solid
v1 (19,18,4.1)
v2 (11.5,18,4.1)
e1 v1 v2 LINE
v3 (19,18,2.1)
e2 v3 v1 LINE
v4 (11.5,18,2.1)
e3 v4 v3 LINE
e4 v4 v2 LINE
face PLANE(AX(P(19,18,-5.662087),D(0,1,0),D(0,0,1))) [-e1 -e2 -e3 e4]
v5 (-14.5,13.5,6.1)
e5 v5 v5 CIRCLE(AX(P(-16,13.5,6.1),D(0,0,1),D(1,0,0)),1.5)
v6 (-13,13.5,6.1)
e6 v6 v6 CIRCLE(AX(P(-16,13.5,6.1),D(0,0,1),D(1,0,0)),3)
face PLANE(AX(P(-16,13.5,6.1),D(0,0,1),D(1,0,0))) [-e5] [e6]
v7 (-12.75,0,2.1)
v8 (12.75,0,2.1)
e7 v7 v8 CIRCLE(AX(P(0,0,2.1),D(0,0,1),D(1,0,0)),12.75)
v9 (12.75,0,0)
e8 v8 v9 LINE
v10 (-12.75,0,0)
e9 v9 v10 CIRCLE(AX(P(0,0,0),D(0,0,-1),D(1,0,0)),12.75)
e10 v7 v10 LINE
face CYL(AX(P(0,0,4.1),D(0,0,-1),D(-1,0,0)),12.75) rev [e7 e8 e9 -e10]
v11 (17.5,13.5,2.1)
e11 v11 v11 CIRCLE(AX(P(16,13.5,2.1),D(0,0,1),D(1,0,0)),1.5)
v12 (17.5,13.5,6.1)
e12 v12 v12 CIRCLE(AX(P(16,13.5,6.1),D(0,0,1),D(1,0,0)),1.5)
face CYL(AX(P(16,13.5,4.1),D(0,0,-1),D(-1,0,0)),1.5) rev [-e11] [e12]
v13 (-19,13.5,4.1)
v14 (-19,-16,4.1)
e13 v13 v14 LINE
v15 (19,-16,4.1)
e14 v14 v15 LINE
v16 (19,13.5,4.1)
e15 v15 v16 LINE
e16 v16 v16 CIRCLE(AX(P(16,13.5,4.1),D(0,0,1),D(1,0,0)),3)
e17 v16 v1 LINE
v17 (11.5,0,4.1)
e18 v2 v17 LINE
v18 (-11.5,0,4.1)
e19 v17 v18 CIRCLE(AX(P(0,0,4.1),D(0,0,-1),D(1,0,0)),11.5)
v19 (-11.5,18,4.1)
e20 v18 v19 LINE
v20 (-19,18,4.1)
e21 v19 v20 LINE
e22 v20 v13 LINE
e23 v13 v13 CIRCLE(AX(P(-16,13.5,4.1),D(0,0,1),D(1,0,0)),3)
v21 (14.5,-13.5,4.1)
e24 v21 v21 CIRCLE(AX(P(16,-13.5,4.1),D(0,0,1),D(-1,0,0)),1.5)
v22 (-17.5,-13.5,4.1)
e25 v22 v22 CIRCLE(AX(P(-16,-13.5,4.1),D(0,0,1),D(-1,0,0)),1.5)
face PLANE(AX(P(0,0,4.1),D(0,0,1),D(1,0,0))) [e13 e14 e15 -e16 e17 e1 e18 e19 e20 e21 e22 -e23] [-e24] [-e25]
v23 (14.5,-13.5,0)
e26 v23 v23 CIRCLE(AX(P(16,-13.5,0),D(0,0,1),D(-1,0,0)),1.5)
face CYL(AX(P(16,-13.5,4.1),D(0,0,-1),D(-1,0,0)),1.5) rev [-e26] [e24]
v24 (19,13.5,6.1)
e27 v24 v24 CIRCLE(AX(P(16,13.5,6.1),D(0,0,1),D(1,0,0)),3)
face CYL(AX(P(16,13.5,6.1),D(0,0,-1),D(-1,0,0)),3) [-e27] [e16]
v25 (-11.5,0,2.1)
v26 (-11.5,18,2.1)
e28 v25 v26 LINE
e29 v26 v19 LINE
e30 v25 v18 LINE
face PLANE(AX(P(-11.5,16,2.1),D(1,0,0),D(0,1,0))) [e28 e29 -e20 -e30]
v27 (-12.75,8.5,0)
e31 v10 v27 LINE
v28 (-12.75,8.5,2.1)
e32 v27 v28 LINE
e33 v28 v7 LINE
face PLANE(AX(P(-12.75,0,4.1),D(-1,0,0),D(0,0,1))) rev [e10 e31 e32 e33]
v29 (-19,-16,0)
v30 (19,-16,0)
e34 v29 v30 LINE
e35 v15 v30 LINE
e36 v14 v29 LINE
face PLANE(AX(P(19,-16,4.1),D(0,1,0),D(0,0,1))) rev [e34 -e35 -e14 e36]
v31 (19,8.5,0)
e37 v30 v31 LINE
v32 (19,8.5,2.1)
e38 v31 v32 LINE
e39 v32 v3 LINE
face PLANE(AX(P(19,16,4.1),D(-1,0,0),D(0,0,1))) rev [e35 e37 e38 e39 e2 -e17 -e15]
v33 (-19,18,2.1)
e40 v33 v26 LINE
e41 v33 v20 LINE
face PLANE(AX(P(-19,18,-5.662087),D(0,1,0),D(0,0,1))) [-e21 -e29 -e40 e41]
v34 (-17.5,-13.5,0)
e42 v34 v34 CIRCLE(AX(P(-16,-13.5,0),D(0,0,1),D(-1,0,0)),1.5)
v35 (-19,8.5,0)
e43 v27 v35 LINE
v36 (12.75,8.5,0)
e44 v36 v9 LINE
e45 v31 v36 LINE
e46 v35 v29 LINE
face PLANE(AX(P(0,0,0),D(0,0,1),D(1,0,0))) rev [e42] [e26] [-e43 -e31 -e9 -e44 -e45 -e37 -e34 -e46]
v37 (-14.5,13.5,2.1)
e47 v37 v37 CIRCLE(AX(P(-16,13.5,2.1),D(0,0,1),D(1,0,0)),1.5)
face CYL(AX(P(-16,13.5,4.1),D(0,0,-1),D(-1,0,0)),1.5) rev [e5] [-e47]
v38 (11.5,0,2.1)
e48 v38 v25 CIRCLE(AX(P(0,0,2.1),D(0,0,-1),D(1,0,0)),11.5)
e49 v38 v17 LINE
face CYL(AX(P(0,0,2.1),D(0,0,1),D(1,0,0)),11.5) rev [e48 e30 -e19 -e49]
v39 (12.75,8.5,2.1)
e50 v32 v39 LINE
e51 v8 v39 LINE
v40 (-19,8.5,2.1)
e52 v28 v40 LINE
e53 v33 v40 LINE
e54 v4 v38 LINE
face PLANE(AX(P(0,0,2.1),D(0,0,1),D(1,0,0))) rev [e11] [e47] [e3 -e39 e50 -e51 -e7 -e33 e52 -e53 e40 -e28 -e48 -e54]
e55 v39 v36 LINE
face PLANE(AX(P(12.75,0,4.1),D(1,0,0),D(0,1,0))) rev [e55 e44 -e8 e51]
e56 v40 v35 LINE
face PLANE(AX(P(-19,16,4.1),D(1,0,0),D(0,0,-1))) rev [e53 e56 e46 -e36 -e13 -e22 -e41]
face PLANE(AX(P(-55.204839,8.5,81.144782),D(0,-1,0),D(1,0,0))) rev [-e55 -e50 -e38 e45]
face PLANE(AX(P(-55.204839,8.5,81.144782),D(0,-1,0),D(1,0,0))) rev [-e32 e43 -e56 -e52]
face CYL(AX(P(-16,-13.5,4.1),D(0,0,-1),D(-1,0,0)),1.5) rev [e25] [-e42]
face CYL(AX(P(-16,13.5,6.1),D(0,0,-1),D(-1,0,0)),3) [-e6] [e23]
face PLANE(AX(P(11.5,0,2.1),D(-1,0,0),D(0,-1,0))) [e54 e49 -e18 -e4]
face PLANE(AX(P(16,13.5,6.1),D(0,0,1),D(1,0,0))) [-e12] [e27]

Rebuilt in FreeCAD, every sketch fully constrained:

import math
import FreeCAD as App
import Part
import Sketcher
from FreeCAD import Vector
Q = App.Units.Quantity


def add_polygon(sketch, points):
    """Adds a closed chain of lines whose ends are joined by coincident constraints."""
    first, n = sketch.GeometryCount, len(points)
    for a, b in zip(points, points[1:] + points[:1]):
        sketch.addGeometry(Part.LineSegment(App.Vector(*a, 0), App.Vector(*b, 0)), False)
    for i in range(n):
        sketch.addConstraint(Sketcher.Constraint("Coincident", first + i, 2, first + (i + 1) % n, 1))

doc = App.newDocument("Part")
body = doc.addObject("PartDesign::Body", "Body")

# Sketch on XY plane
sketch1 = doc.addObject("Sketcher::SketchObject", "Sketch")
body.addObject(sketch1)
sketch1.AttachmentSupport = (doc.XY_Plane, [""])
sketch1.MapMode = "FlatFace"
sketch1.addGeometry([
    Part.LineSegment(Vector(-12.8, 0, 0), Vector(-12.8, 16, 0)),  # 0
    Part.LineSegment(Vector(-12.8, 16, 0), Vector(-19, 16, 0)),  # 1
    Part.LineSegment(Vector(-19, 16, 0), Vector(-19, -16, 0)),  # 2
    Part.LineSegment(Vector(-19, -16, 0), Vector(19, -16, 0)),  # 3
    Part.LineSegment(Vector(19, -16, 0), Vector(19, 16, 0)),  # 4
    Part.LineSegment(Vector(19, 16, 0), Vector(12.8, 16, 0)),  # 5
    Part.LineSegment(Vector(12.8, 16, 0), Vector(12.8, 0, 0)),  # 6
    Part.ArcOfCircle(Part.Circle(Vector(0, 0, 0), Vector(0, 0, 1), 12.8), math.radians(180), math.radians(360)),  # 7
    Part.Circle(Vector(-16, -13.5, 0), Vector(0, 0, 1), 1.5),  # 8
    Part.Circle(Vector(16, -13.5, 0), Vector(0, 0, 1), 1.5),  # 9
    Part.Circle(Vector(-16, 13.5, 0), Vector(0, 0, 1), 1.5),  # 10
    Part.Circle(Vector(16, 13.5, 0), Vector(0, 0, 1), 1.5),  # 11
], False)
sketch1.addConstraint([
    Sketcher.Constraint("Coincident", 0, 2, 1, 1),
    Sketcher.Constraint("Coincident", 1, 2, 2, 1),
    Sketcher.Constraint("Coincident", 2, 2, 3, 1),
    Sketcher.Constraint("Coincident", 3, 2, 4, 1),
    Sketcher.Constraint("Coincident", 4, 2, 5, 1),
    Sketcher.Constraint("Coincident", 5, 2, 6, 1),
    Sketcher.Constraint("Tangent", 6, 2, 7, 2),
    Sketcher.Constraint("Tangent", 7, 1, 0, 1),
    Sketcher.Constraint("Vertical", 0),
    Sketcher.Constraint("Horizontal", 1),
    Sketcher.Constraint("Vertical", 2),
    Sketcher.Constraint("Horizontal", 3),
    Sketcher.Constraint("Vertical", 4),
    Sketcher.Constraint("Horizontal", 5),
    Sketcher.Constraint("Vertical", 6),
    Sketcher.Constraint("Coincident", 7, 3, -1, 1),
    Sketcher.Constraint("Equal", 8, 9),
    Sketcher.Constraint("Equal", 9, 10),
    Sketcher.Constraint("Equal", 10, 11),
    Sketcher.Constraint("Symmetric", 9, 3, 10, 3, -1, 1),
    Sketcher.Constraint("Symmetric", 8, 3, 11, 3, -1, 1),
    Sketcher.Constraint("Symmetric", 1, 2, 3, 2, -1, 1),
    Sketcher.Constraint("Symmetric", 8, 3, 9, 3, -2),
    Sketcher.Constraint("Horizontal", 1, 2, 4, 2),
    Sketcher.Constraint("Diameter", 8, Q("3 mm")),
    Sketcher.Constraint("DistanceX", 3, 1, 3, 2, Q("38 mm")),
    Sketcher.Constraint("DistanceY", 0, 1, 0, 2, Q("16 mm")),
    Sketcher.Constraint("Radius", 7, Q("12.75 mm")),
    Sketcher.Constraint("DistanceX", 8, 3, -1, 1, Q("16 mm")),
    Sketcher.Constraint("DistanceY", 8, 3, 10, 3, Q("27 mm")),
])
pad1 = doc.addObject("PartDesign::Pad", "Pad")
body.addObject(pad1)
pad1.Profile = sketch1
pad1.Length = 4.1

# Sketch on XY plane
sketch2 = doc.addObject("Sketcher::SketchObject", "Sketch001")
body.addObject(sketch2)
sketch2.AttachmentSupport = (doc.XY_Plane, [""])
sketch2.MapMode = "FlatFace"
sketch2.AttachmentOffset = App.Placement(Vector(0, 0, 2.1), App.Rotation())
sketch2.addGeometry([
    Part.LineSegment(Vector(-12.8, 16, 0), Vector(-12.8, 0, 0)),  # 0
    Part.ArcOfCircle(Part.Circle(Vector(0, 0, 0), Vector(0, 0, 1), 12.8), math.radians(180), math.radians(360)),  # 1
    Part.LineSegment(Vector(12.8, 0, 0), Vector(12.8, 16, 0)),  # 2
    Part.LineSegment(Vector(12.8, 16, 0), Vector(11.5, 16, 0)),  # 3
    Part.LineSegment(Vector(11.5, 16, 0), Vector(11.5, 0, 0)),  # 4
    Part.ArcOfCircle(Part.Circle(Vector(0, 0, 0), Vector(0, 0, 1), 11.5), math.radians(180), math.radians(360)),  # 5
    Part.LineSegment(Vector(-11.5, 0, 0), Vector(-11.5, 16, 0)),  # 6
    Part.LineSegment(Vector(-11.5, 16, 0), Vector(-12.8, 16, 0)),  # 7
], False)
sketch2.addConstraint([
    Sketcher.Constraint("Tangent", 0, 2, 1, 1),
    Sketcher.Constraint("Tangent", 1, 2, 2, 1),
    Sketcher.Constraint("Coincident", 2, 2, 3, 1),
    Sketcher.Constraint("Coincident", 3, 2, 4, 1),
    Sketcher.Constraint("Tangent", 4, 2, 5, 2),
    Sketcher.Constraint("Tangent", 5, 1, 6, 1),
    Sketcher.Constraint("Coincident", 6, 2, 7, 1),
    Sketcher.Constraint("Coincident", 7, 2, 0, 1),
    Sketcher.Constraint("Vertical", 0),
    Sketcher.Constraint("Vertical", 2),
    Sketcher.Constraint("Horizontal", 3),
    Sketcher.Constraint("Vertical", 4),
    Sketcher.Constraint("Vertical", 6),
    Sketcher.Constraint("Horizontal", 7),
    Sketcher.Constraint("Coincident", 1, 3, -1, 1),
    Sketcher.Constraint("Coincident", 5, 3, -1, 1),
    Sketcher.Constraint("Horizontal", 3, 2, 6, 2),
    Sketcher.Constraint("Radius", 5, Q("11.5 mm")),
    Sketcher.Constraint("DistanceY", 0, 2, 0, 1, Q("16 mm")),
    Sketcher.Constraint("Radius", 1, Q("12.75 mm")),
])
pad2 = doc.addObject("PartDesign::Pad", "Pad001")
body.addObject(pad2)
pad2.Profile = sketch2
pad2.Length = 2

# Sketch on XY plane
sketch3 = doc.addObject("Sketcher::SketchObject", "Sketch002")
body.addObject(sketch3)
sketch3.AttachmentSupport = (doc.XY_Plane, [""])
sketch3.MapMode = "FlatFace"
add_polygon(sketch3, [(23, 18), (23, 8), (-55, 8), (-55, 18)])  # lines 0-3
sketch3.addConstraint([
    Sketcher.Constraint("Vertical", 0),
    Sketcher.Constraint("Horizontal", 1),
    Sketcher.Constraint("Vertical", 2),
    Sketcher.Constraint("Horizontal", 3),
    Sketcher.Constraint("DistanceY", 0, 2, 0, 1, Q("10 mm")),
    Sketcher.Constraint("DistanceY", -1, 1, 0, 2, Q("8.5 mm")),
    Sketcher.Constraint("DistanceX", 1, 2, 1, 1, Q("78.409678 mm")),
    Sketcher.Constraint("DistanceX", -1, 1, 0, 2, Q("23.204839 mm")),
])
pocket1 = doc.addObject("PartDesign::Pocket", "Pocket")
body.addObject(pocket1)
pocket1.Profile = sketch3
pocket1.Length = 2.1
pocket1.Reversed = True

# Sketch on XY plane
sketch4 = doc.addObject("Sketcher::SketchObject", "Sketch003")
body.addObject(sketch4)
sketch4.AttachmentSupport = (doc.XY_Plane, [""])
sketch4.MapMode = "FlatFace"
sketch4.AttachmentOffset = App.Placement(Vector(0, 0, 4.1), App.Rotation())
add_polygon(sketch4, [(-19, 18), (-19, 16), (-11.5, 16), (-11.5, 18)])  # lines 0-3
add_polygon(sketch4, [(11.5, 18), (11.5, 16), (19, 16), (19, 18)])  # lines 4-7
sketch4.addConstraint([
    Sketcher.Constraint("Vertical", 0),
    Sketcher.Constraint("Horizontal", 1),
    Sketcher.Constraint("Vertical", 2),
    Sketcher.Constraint("Horizontal", 3),
    Sketcher.Constraint("Vertical", 4),
    Sketcher.Constraint("Horizontal", 5),
    Sketcher.Constraint("Vertical", 6),
    Sketcher.Constraint("Horizontal", 7),
    Sketcher.Constraint("Symmetric", 1, 2, 4, 2, -2),
    Sketcher.Constraint("Symmetric", 3, 2, 6, 2, -2),
    Sketcher.Constraint("DistanceY", 0, 2, 0, 1, Q("2 mm")),
    Sketcher.Constraint("DistanceX", 1, 1, 1, 2, Q("7.5 mm")),
    Sketcher.Constraint("DistanceX", 0, 2, -1, 1, Q("19 mm")),
    Sketcher.Constraint("DistanceY", -1, 1, 0, 2, Q("16 mm")),
])
pad3 = doc.addObject("PartDesign::Pad", "Pad002")
body.addObject(pad3)
pad3.Profile = sketch4
pad3.Length = 2
pad3.Reversed = True

# Sketch on XY plane
sketch5 = doc.addObject("Sketcher::SketchObject", "Sketch004")
body.addObject(sketch5)
sketch5.AttachmentSupport = (doc.XY_Plane, [""])
sketch5.MapMode = "FlatFace"
sketch5.AttachmentOffset = App.Placement(Vector(0, 0, 4.1), App.Rotation())
sketch5.addGeometry([
    Part.Circle(Vector(-16, 13.5, 0), Vector(0, 0, 1), 3),
    Part.Circle(Vector(-16, 13.5, 0), Vector(0, 0, 1), 1.5),
    Part.Circle(Vector(16, 13.5, 0), Vector(0, 0, 1), 3),
    Part.Circle(Vector(16, 13.5, 0), Vector(0, 0, 1), 1.5),
], False)
sketch5.addConstraint([
    Sketcher.Constraint("Coincident", 1, 3, 0, 3),
    Sketcher.Constraint("Coincident", 3, 3, 2, 3),
    Sketcher.Constraint("Equal", 0, 2),
    Sketcher.Constraint("Equal", 1, 3),
    Sketcher.Constraint("Symmetric", 0, 3, 2, 3, -2),
    Sketcher.Constraint("Diameter", 0, Q("6 mm")),
    Sketcher.Constraint("Diameter", 1, Q("3 mm")),
    Sketcher.Constraint("DistanceX", 0, 3, -1, 1, Q("16 mm")),
    Sketcher.Constraint("DistanceY", -1, 1, 0, 3, Q("13.5 mm")),
])
pad4 = doc.addObject("PartDesign::Pad", "Pad003")
body.addObject(pad4)
pad4.Profile = sketch5
pad4.Length = 2

doc.recompute()
